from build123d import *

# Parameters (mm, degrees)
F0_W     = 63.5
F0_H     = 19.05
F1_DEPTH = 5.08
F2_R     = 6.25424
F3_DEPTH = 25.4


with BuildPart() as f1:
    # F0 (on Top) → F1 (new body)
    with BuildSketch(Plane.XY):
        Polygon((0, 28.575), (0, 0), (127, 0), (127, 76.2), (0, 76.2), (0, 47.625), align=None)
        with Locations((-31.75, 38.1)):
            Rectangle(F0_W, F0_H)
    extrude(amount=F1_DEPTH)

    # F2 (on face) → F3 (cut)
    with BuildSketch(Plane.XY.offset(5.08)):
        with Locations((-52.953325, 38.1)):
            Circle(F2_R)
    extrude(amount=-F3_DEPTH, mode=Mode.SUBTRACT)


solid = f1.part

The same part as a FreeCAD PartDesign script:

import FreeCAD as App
import Part
import Sketcher

V = App.Vector
Q = App.Units.Quantity

doc = App.newDocument("Part")
params = doc.addObject("Spreadsheet::Sheet", "Params")
for row, (alias, value) in enumerate([
    ("sketch1_width", "5 in"),
    ("sketch1_height", "3 in"),
    ("sketch1_width2", "2.5 in"),
    ("sketch1_height2", "0.75 in"),
    ("pad1_length", "0.2 in"),
    ("pocket1_length", "1 in"),
], start=1):
    params.set(f"A{row}", alias)
    params.set(f"B{row}", "=" + value)
    params.setAlias(f"B{row}", alias)

body = doc.addObject("PartDesign::Body", "Body")

sketch1 = body.newObject("Sketcher::SketchObject", "Sketch")
sketch1.AttachmentSupport = (doc.getObject("XY_Plane"), [""])
sketch1.MapMode = "FlatFace"
sketch1.addGeometry([
    Part.LineSegment(V(0, 0, 0), V(127, 0, 0)),
    Part.LineSegment(V(127, 0, 0), V(127, 76, 0)),
    Part.LineSegment(V(127, 76, 0), V(0, 76, 0)),
    Part.LineSegment(V(0, 76, 0), V(0, 48, 0)),
    Part.LineSegment(V(0, 48, 0), V(-64, 48, 0)),
    Part.LineSegment(V(-64, 48, 0), V(-64, 29, 0)),
    Part.LineSegment(V(-64, 29, 0), V(0, 29, 0)),
    Part.LineSegment(V(0, 29, 0), V(0, 0, 0)),
], False)
sketch1.addConstraint([
    Sketcher.Constraint("Coincident", 0, 2, 1, 1),
    Sketcher.Constraint("Coincident", 1, 2, 2, 1),
    Sketcher.Constraint("Coincident", 2, 2, 3, 1),
    Sketcher.Constraint("Coincident", 3, 2, 4, 1),
    Sketcher.Constraint("Coincident", 4, 2, 5, 1),
    Sketcher.Constraint("Coincident", 5, 2, 6, 1),
    Sketcher.Constraint("Coincident", 6, 2, 7, 1),
    Sketcher.Constraint("Coincident", 7, 2, 0, 1),
    Sketcher.Constraint("Horizontal", 0),
    Sketcher.Constraint("Vertical", 1),
    Sketcher.Constraint("Horizontal", 2),
    Sketcher.Constraint("Vertical", 3),
    Sketcher.Constraint("Horizontal", 4),
    Sketcher.Constraint("Vertical", 5),
    Sketcher.Constraint("Horizontal", 6),
    Sketcher.Constraint("Vertical", 7),
    Sketcher.Constraint("Coincident", 7, 2, -1, 1),
    Sketcher.Constraint("PointOnObject", 2, 2, -2),
    Sketcher.Constraint("Equal", 3, 7),
    Sketcher.Constraint("DistanceX", 0, 1, 0, 2, Q("5 in")),
    Sketcher.Constraint("DistanceY", 1, 1, 1, 2, Q("3 in")),
    Sketcher.Constraint("DistanceX", 4, 2, 4, 1, Q("2.5 in")),
    Sketcher.Constraint("DistanceY", 5, 2, 5, 1, Q("0.75 in")),
])
sketch1.setExpression("Constraints[19]", "Params.sketch1_width")
sketch1.setExpression("Constraints[20]", "Params.sketch1_height")
sketch1.setExpression("Constraints[21]", "Params.sketch1_width2")
sketch1.setExpression("Constraints[22]", "Params.sketch1_height2")
pad1 = body.newObject("PartDesign::Pad", "Pad")
pad1.Profile = sketch1
pad1.setExpression("Length", "Params.pad1_length")

sketch2 = body.newObject("Sketcher::SketchObject", "Sketch001")
sketch2.AttachmentSupport = (doc.getObject("XY_Plane"), [""])
sketch2.MapMode = "FlatFace"
sketch2.AttachmentOffset = App.Placement(V(0, 0, 0.2 * 25.4), App.Rotation())
sketch2.addGeometry(Part.Circle(V(-53, 38, 0), V(0, 0, 1), 6), False)
sketch2.addConstraint([
    Sketcher.Constraint("DistanceY", -1, 1, 0, 3, Q("1.5 in")),
    Sketcher.Constraint("Diameter", 0, Q("12.50848 mm")),
    Sketcher.Constraint("DistanceX", 0, 3, -1, 1, Q("52.953325 mm")),
])
pocket1 = body.newObject("PartDesign::Pocket", "Pocket")
pocket1.Profile = sketch2
pocket1.setExpression("Length", "Params.pocket1_length")

doc.recompute()
